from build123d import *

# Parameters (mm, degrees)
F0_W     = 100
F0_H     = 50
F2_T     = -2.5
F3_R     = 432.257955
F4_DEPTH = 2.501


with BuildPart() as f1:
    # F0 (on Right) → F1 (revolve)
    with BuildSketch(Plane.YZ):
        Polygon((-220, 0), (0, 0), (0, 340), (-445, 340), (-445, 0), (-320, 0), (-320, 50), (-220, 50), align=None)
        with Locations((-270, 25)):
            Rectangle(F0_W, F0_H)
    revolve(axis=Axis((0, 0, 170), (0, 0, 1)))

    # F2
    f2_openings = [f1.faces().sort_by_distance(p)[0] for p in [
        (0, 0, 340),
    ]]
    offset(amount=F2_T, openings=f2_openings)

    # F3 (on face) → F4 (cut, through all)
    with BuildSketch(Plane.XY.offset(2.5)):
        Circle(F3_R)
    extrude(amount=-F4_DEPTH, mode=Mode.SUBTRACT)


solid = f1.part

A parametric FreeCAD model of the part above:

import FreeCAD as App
import Part
import Sketcher
Q = App.Units.Quantity


def faces_at(feature, points):
    """Names of the faces that lie closest to the given points."""
    faces = feature.Shape.Faces
    near = lambda p: min(range(len(faces)), key=lambda i: faces[i].distToShape(Part.Vertex(*p))[0])
    return sorted({f"Face{near(p) + 1}" for p in points})


def add_polygon(sketch, points):
    """Adds a closed chain of lines whose ends are joined by coincident constraints."""
    first, n = sketch.GeometryCount, len(points)
    for a, b in zip(points, points[1:] + points[:1]):
        sketch.addGeometry(Part.LineSegment(App.Vector(*a, 0), App.Vector(*b, 0)), False)
    for i in range(n):
        sketch.addConstraint(Sketcher.Constraint("Coincident", first + i, 2, first + (i + 1) % n, 1))

doc = App.newDocument("Part")
body = doc.addObject("PartDesign::Body", "Body")

# Sketch on YZ plane
sketch1 = body.newObject("Sketcher::SketchObject", "Sketch")
sketch1.AttachmentSupport = (doc.getObject("YZ_Plane"), [""])
sketch1.MapMode = "FlatFace"
add_polygon(sketch1, [(0, 0), (0, 340), (-445, 340), (-445, 0)])  # lines 0-3
sketch1.addConstraint([
    Sketcher.Constraint("Vertical", 0),
    Sketcher.Constraint("Horizontal", 1),
    Sketcher.Constraint("Vertical", 2),
    Sketcher.Constraint("Horizontal", 3),
    Sketcher.Constraint("Coincident", 3, 2, -1, 1),
    Sketcher.Constraint("DistanceX", 1, 2, 1, 1, Q("445 mm")),
    Sketcher.Constraint("DistanceY", 0, 1, 0, 2, Q("340 mm")),
])
revolution = body.newObject("PartDesign::Revolution", "Revolution")
revolution.Profile = sketch1
revolution.ReferenceAxis = (sketch1, ["V_Axis"])
revolution.Angle = 360
doc.recompute()

thickness = body.newObject("PartDesign::Thickness", "Thickness")
thickness.Base = (revolution, faces_at(revolution, [(0, 0, 340)]))
thickness.Value = 2.5
thickness.Reversed = True
thickness.Join = "Arc"

# Sketch on XY plane
sketch2 = body.newObject("Sketcher::SketchObject", "Sketch001")
sketch2.AttachmentSupport = (doc.getObject("XY_Plane"), [""])
sketch2.MapMode = "FlatFace"
sketch2.AttachmentOffset = App.Placement(App.Vector(0, 0, 2.5), App.Rotation())
sketch2.addGeometry(Part.Circle(App.Vector(0, 0, 0), App.Vector(0, 0, 1), 432), False)
sketch2.addConstraint([
    Sketcher.Constraint("Coincident", 0, 3, -1, 1),
    Sketcher.Constraint("Diameter", 0, Q("864.51591 mm")),
])
pocket1 = body.newObject("PartDesign::Pocket", "Pocket")
pocket1.Profile = sketch2
pocket1.Type = "ThroughAll"

doc.recompute()
